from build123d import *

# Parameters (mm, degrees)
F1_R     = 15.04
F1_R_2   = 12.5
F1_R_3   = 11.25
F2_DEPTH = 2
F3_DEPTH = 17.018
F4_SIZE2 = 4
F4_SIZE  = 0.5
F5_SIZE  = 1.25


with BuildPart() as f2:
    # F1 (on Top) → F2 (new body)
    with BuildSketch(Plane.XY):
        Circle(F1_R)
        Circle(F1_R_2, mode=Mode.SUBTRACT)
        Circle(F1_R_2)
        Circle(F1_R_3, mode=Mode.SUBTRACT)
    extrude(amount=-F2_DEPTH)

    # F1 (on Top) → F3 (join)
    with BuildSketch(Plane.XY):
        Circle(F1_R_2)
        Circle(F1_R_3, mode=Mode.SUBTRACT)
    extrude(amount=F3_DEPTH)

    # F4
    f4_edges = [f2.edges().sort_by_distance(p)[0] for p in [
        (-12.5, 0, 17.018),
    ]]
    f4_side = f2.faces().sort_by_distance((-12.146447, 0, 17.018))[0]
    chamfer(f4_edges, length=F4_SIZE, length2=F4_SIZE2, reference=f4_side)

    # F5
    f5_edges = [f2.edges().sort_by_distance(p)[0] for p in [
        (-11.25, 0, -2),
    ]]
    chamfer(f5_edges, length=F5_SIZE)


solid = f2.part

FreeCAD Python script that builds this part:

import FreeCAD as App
import Part
import Sketcher


def edges_at(feature, points):
    """Names of the edges that pass closest to the given points."""
    edges = feature.Shape.Edges
    near = lambda p: min(range(len(edges)), key=lambda i: edges[i].distToShape(Part.Vertex(*p))[0])
    return sorted({f"Edge{near(p) + 1}" for p in points})

doc = App.newDocument("Part")
params = doc.addObject("Spreadsheet::Sheet", "Params")
for row, (alias, value) in enumerate([
    ("sketch1_diameter", "22.5 mm"),
    ("sketch1_diameter2", "30.08 mm"),
    ("pad1_length", "2 mm"),
    ("sketch2_diameter", "25 mm"),
    ("sketch2_diameter2", "22.5 mm"),
    ("pad2_length", "17.018 mm"),
    ("chamfer_size", "0.5 mm"),
    ("chamfer_size2", "4 mm"),
    ("chamfer2_size", "1.25 mm"),
], start=1):
    params.set(f"A{row}", alias)
    params.set(f"B{row}", "=" + value)
    params.setAlias(f"B{row}", alias)

body = doc.addObject("PartDesign::Body", "Body")

# Sketch on XY plane
sketch1 = body.newObject("Sketcher::SketchObject", "Sketch")
sketch1.AttachmentSupport = (doc.getObject("XY_Plane"), [""])
sketch1.MapMode = "FlatFace"
sketch1.addGeometry(Part.Circle(App.Vector(0, 0, 0), App.Vector(0, 0, 1), 15.04), False)
sketch1.addGeometry(Part.Circle(App.Vector(0, 0, 0), App.Vector(0, 0, 1), 11.25), False)
sketch1.addConstraint(Sketcher.Constraint("Coincident", 0, 3, -1, 1))
sketch1.addConstraint(Sketcher.Constraint("Coincident", 1, 3, -1, 1))
sketch1.addConstraint(Sketcher.Constraint("Diameter", 1, 22.5))
sketch1.addConstraint(Sketcher.Constraint("Diameter", 0, 30.08))
sketch1.setExpression("Constraints[2]", "Params.sketch1_diameter")
sketch1.setExpression("Constraints[3]", "Params.sketch1_diameter2")
pad1 = body.newObject("PartDesign::Pad", "Pad")
pad1.Profile = sketch1
pad1.setExpression("Length", "Params.pad1_length")
pad1.Reversed = True

# Sketch on XY plane
sketch2 = body.newObject("Sketcher::SketchObject", "Sketch001")
sketch2.AttachmentSupport = (doc.getObject("XY_Plane"), [""])
sketch2.MapMode = "FlatFace"
sketch2.addGeometry(Part.Circle(App.Vector(0, 0, 0), App.Vector(0, 0, 1), 12.5), False)
sketch2.addGeometry(Part.Circle(App.Vector(0, 0, 0), App.Vector(0, 0, 1), 11.25), False)
sketch2.addConstraint(Sketcher.Constraint("Coincident", 0, 3, -1, 1))
sketch2.addConstraint(Sketcher.Constraint("Coincident", 1, 3, -1, 1))
sketch2.addConstraint(Sketcher.Constraint("Diameter", 0, 25.0))
sketch2.addConstraint(Sketcher.Constraint("Diameter", 1, 22.5))
sketch2.setExpression("Constraints[2]", "Params.sketch2_diameter")
sketch2.setExpression("Constraints[3]", "Params.sketch2_diameter2")
pad2 = body.newObject("PartDesign::Pad", "Pad001")
pad2.Profile = sketch2
pad2.setExpression("Length", "Params.pad2_length")
doc.recompute()

chamfer = body.newObject("PartDesign::Chamfer", "Chamfer")
chamfer.Base = (pad2, edges_at(pad2, [(-12.5, 0, 17.018)]))
chamfer.ChamferType = "Two distances"
chamfer.setExpression("Size", "Params.chamfer_size")
chamfer.setExpression("Size2", "Params.chamfer_size2")
chamfer.FlipDirection = True
doc.recompute()

chamfer2 = body.newObject("PartDesign::Chamfer", "Chamfer001")
chamfer2.Base = (chamfer, edges_at(chamfer, [(-11.25, 0, -2)]))
chamfer2.setExpression("Size", "Params.chamfer2_size")

doc.recompute()
